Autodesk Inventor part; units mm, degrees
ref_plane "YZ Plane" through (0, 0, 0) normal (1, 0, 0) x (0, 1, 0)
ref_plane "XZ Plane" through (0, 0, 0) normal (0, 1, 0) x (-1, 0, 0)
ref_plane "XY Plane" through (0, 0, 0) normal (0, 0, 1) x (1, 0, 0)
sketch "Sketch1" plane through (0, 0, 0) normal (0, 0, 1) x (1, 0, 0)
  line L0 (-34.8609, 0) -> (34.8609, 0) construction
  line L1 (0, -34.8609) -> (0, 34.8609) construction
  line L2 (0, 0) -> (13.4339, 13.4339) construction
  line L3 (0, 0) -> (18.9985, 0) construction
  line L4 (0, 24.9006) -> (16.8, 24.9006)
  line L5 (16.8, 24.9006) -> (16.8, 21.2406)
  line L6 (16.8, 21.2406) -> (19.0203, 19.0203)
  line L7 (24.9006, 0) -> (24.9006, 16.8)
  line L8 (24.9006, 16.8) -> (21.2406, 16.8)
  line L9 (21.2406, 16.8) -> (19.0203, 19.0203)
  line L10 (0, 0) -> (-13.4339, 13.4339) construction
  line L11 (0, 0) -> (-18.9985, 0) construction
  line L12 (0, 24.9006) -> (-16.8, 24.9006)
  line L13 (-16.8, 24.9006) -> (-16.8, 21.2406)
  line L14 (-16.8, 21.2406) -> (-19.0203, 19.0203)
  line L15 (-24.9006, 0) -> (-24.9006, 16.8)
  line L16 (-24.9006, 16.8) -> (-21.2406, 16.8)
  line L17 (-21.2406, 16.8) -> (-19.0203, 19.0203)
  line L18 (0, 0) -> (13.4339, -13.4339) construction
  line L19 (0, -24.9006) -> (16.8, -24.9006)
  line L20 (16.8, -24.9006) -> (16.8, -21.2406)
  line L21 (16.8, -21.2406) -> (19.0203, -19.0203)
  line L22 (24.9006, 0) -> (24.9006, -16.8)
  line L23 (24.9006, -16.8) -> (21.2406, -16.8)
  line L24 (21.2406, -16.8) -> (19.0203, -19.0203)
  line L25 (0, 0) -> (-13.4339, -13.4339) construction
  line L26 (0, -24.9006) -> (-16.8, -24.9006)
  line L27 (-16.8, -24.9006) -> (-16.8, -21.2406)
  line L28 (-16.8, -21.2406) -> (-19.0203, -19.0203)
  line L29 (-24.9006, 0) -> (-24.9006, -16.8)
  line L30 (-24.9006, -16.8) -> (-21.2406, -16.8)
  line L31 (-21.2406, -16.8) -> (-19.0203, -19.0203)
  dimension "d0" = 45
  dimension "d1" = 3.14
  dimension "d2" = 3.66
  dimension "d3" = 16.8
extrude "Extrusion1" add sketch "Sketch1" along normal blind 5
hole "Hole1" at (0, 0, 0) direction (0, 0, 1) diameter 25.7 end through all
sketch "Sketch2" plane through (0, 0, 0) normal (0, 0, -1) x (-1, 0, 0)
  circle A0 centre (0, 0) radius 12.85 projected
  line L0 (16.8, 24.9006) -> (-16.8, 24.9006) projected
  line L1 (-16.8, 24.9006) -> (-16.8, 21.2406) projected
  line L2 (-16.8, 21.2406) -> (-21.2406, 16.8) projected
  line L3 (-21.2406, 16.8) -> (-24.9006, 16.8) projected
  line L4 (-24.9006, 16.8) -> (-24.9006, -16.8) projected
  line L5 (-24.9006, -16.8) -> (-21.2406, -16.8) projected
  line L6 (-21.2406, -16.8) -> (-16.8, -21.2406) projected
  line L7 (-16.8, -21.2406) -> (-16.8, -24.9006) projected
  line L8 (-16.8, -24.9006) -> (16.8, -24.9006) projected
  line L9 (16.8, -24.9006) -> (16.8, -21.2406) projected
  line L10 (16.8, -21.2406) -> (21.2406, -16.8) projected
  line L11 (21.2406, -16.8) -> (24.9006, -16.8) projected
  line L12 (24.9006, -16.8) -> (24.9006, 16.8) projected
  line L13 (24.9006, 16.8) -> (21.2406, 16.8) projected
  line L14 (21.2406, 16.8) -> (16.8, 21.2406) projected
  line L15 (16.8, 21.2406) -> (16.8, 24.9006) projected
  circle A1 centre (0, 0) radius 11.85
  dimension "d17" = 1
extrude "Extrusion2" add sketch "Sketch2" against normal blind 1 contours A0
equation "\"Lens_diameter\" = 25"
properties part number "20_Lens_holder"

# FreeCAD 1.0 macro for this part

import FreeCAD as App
import Part
import Sketcher

V = App.Vector

doc = App.newDocument("Part")
params = doc.addObject("Spreadsheet::Sheet", "Params")
for row, (alias, value) in enumerate([
    ("sketch1_width", "3.66 mm"),
    ("sketch1_length", "6.28 mm"),
    ("pad1_length", "5 mm"),
    ("sketch2_diameter", "25.7 mm"),
    ("hole_diameter", "25.7 mm"),
    ("sketch3_diameter", "25.7 mm"),
    ("sketch3_diameter2", "23.7 mm"),
    ("pad2_length", "1 mm"),
], start=1):
    params.set(f"A{row}", alias)
    params.set(f"B{row}", "=" + value)
    params.setAlias(f"B{row}", alias)

body = doc.addObject("PartDesign::Body", "Body")

# Sketch on XY plane
sketch1 = body.newObject("Sketcher::SketchObject", "Sketch")
sketch1.AttachmentSupport = (doc.getObject("XY_Plane"), [""])
sketch1.MapMode = "FlatFace"
sketch1.addGeometry([
    Part.LineSegment(V(16.8, 24.9, 0), V(-16.8, 24.9, 0)),  # 0
    Part.LineSegment(V(-16.8, 24.9, 0), V(-16.8, 21.2, 0)),  # 1
    Part.LineSegment(V(-16.8, 21.2, 0), V(-21.2, 16.8, 0)),  # 2
    Part.LineSegment(V(-21.2, 16.8, 0), V(-24.9, 16.8, 0)),  # 3
    Part.LineSegment(V(-24.9, 16.8, 0), V(-24.9, -16.8, 0)),  # 4
    Part.LineSegment(V(-24.9, -16.8, 0), V(-21.2, -16.8, 0)),  # 5
    Part.LineSegment(V(-21.2, -16.8, 0), V(-16.8, -21.2, 0)),  # 6
    Part.LineSegment(V(-16.8, -21.2, 0), V(-16.8, -24.9, 0)),  # 7
    Part.LineSegment(V(-16.8, -24.9, 0), V(16.8, -24.9, 0)),  # 8
    Part.LineSegment(V(16.8, -24.9, 0), V(16.8, -21.2, 0)),  # 9
    Part.LineSegment(V(16.8, -21.2, 0), V(21.2, -16.8, 0)),  # 10
    Part.LineSegment(V(21.2, -16.8, 0), V(24.9, -16.8, 0)),  # 11
    Part.LineSegment(V(24.9, -16.8, 0), V(24.9, 16.8, 0)),  # 12
    Part.LineSegment(V(24.9, 16.8, 0), V(21.2, 16.8, 0)),  # 13
    Part.LineSegment(V(21.2, 16.8, 0), V(16.8, 21.2, 0)),  # 14
    Part.LineSegment(V(16.8, 21.2, 0), V(16.8, 24.9, 0)),  # 15
], False)
sketch1.addConstraint([
    Sketcher.Constraint("Coincident", 0, 2, 1, 1),
    Sketcher.Constraint("Coincident", 1, 2, 2, 1),
    Sketcher.Constraint("Coincident", 2, 2, 3, 1),
    Sketcher.Constraint("Coincident", 3, 2, 4, 1),
    Sketcher.Constraint("Coincident", 4, 2, 5, 1),
    Sketcher.Constraint("Coincident", 5, 2, 6, 1),
    Sketcher.Constraint("Coincident", 6, 2, 7, 1),
    Sketcher.Constraint("Coincident", 7, 2, 8, 1),
    Sketcher.Constraint("Coincident", 8, 2, 9, 1),
    Sketcher.Constraint("Coincident", 9, 2, 10, 1),
    Sketcher.Constraint("Coincident", 10, 2, 11, 1),
    Sketcher.Constraint("Coincident", 11, 2, 12, 1),
    Sketcher.Constraint("Coincident", 12, 2, 13, 1),
    Sketcher.Constraint("Coincident", 13, 2, 14, 1),
    Sketcher.Constraint("Coincident", 14, 2, 15, 1),
    Sketcher.Constraint("Coincident", 15, 2, 0, 1),
    Sketcher.Constraint("Horizontal", 0),
    Sketcher.Constraint("Vertical", 1),
    Sketcher.Constraint("Horizontal", 3),
    Sketcher.Constraint("Vertical", 4),
    Sketcher.Constraint("Horizontal", 5),
    Sketcher.Constraint("Vertical", 7),
    Sketcher.Constraint("Horizontal", 8),
    Sketcher.Constraint("Vertical", 9),
    Sketcher.Constraint("Horizontal", 11),
    Sketcher.Constraint("Vertical", 12),
    Sketcher.Constraint("Horizontal", 13),
    Sketcher.Constraint("Vertical", 15),
    Sketcher.Constraint("Symmetric", 0, 2, 8, 2, -1, 1),
    Sketcher.Constraint("Symmetric", 2, 2, 10, 2, -1, 1),
    Sketcher.Constraint("Symmetric", 4, 2, 12, 2, -1, 1),
    Sketcher.Constraint("Symmetric", 6, 2, 14, 2, -1, 1),
    Sketcher.Constraint("Symmetric", 6, 2, 9, 2, -2),
    Sketcher.Constraint("Symmetric", 5, 2, 10, 2, -2),
    Sketcher.Constraint("Perpendicular", 2, 6),
    Sketcher.Constraint("Perpendicular", 6, 10),
    Sketcher.Constraint("Perpendicular", 10, 14),
    Sketcher.Constraint("Equal", 13, 1),
    Sketcher.Constraint("Equal", 8, 4),
    Sketcher.Constraint("DistanceX", 3, 2, 3, 1, 3.66),
    Sketcher.Constraint("DistanceX", 0, 2, -1, 1, 16.8),
    Sketcher.Constraint("Distance", 2, 6.28),
])
sketch1.setExpression("Constraints[39]", "Params.sketch1_width")
sketch1.setExpression("Constraints[41]", "Params.sketch1_length")
pad1 = body.newObject("PartDesign::Pad", "Pad")
pad1.Profile = sketch1
pad1.setExpression("Length", "Params.pad1_length")

# Sketch on XY plane
sketch2 = body.newObject("Sketcher::SketchObject", "Sketch001")
sketch2.AttachmentSupport = (doc.getObject("XY_Plane"), [""])
sketch2.MapMode = "FlatFace"
sketch2.addGeometry(Part.Circle(V(0, 0, 0), V(0, 0, 1), 13), False)
sketch2.addConstraint([
    Sketcher.Constraint("Coincident", 0, 3, -1, 1),
    Sketcher.Constraint("Diameter", 0, 25.7),
])
sketch2.setExpression("Constraints[1]", "Params.sketch2_diameter")
doc.recompute()
hole = body.newObject("PartDesign::Hole", "Hole")
hole.Profile = sketch2
hole.ThreadType = "None"
hole.setExpression("Diameter", "Params.hole_diameter")
hole.DepthType = "ThroughAll"
hole.Reversed = True

# Sketch on XY plane
sketch3 = body.newObject("Sketcher::SketchObject", "Sketch002")
sketch3.AttachmentSupport = (doc.getObject("XY_Plane"), [""])
sketch3.MapMode = "FlatFace"
sketch3.addGeometry([
    Part.Circle(V(0, 0, 0), V(0, 0, 1), 13),
    Part.Circle(V(0, 0, 0), V(0, 0, 1), 12),
], False)
sketch3.addConstraint([
    Sketcher.Constraint("Coincident", 0, 3, -1, 1),
    Sketcher.Constraint("Coincident", 1, 3, -1, 1),
    Sketcher.Constraint("Diameter", 0, 25.7),
    Sketcher.Constraint("Diameter", 1, 23.7),
])
sketch3.setExpression("Constraints[2]", "Params.sketch3_diameter")
sketch3.setExpression("Constraints[3]", "Params.sketch3_diameter2")
pad2 = body.newObject("PartDesign::Pad", "Pad001")
pad2.Profile = sketch3
pad2.setExpression("Length", "Params.pad2_length")

doc.recompute()
